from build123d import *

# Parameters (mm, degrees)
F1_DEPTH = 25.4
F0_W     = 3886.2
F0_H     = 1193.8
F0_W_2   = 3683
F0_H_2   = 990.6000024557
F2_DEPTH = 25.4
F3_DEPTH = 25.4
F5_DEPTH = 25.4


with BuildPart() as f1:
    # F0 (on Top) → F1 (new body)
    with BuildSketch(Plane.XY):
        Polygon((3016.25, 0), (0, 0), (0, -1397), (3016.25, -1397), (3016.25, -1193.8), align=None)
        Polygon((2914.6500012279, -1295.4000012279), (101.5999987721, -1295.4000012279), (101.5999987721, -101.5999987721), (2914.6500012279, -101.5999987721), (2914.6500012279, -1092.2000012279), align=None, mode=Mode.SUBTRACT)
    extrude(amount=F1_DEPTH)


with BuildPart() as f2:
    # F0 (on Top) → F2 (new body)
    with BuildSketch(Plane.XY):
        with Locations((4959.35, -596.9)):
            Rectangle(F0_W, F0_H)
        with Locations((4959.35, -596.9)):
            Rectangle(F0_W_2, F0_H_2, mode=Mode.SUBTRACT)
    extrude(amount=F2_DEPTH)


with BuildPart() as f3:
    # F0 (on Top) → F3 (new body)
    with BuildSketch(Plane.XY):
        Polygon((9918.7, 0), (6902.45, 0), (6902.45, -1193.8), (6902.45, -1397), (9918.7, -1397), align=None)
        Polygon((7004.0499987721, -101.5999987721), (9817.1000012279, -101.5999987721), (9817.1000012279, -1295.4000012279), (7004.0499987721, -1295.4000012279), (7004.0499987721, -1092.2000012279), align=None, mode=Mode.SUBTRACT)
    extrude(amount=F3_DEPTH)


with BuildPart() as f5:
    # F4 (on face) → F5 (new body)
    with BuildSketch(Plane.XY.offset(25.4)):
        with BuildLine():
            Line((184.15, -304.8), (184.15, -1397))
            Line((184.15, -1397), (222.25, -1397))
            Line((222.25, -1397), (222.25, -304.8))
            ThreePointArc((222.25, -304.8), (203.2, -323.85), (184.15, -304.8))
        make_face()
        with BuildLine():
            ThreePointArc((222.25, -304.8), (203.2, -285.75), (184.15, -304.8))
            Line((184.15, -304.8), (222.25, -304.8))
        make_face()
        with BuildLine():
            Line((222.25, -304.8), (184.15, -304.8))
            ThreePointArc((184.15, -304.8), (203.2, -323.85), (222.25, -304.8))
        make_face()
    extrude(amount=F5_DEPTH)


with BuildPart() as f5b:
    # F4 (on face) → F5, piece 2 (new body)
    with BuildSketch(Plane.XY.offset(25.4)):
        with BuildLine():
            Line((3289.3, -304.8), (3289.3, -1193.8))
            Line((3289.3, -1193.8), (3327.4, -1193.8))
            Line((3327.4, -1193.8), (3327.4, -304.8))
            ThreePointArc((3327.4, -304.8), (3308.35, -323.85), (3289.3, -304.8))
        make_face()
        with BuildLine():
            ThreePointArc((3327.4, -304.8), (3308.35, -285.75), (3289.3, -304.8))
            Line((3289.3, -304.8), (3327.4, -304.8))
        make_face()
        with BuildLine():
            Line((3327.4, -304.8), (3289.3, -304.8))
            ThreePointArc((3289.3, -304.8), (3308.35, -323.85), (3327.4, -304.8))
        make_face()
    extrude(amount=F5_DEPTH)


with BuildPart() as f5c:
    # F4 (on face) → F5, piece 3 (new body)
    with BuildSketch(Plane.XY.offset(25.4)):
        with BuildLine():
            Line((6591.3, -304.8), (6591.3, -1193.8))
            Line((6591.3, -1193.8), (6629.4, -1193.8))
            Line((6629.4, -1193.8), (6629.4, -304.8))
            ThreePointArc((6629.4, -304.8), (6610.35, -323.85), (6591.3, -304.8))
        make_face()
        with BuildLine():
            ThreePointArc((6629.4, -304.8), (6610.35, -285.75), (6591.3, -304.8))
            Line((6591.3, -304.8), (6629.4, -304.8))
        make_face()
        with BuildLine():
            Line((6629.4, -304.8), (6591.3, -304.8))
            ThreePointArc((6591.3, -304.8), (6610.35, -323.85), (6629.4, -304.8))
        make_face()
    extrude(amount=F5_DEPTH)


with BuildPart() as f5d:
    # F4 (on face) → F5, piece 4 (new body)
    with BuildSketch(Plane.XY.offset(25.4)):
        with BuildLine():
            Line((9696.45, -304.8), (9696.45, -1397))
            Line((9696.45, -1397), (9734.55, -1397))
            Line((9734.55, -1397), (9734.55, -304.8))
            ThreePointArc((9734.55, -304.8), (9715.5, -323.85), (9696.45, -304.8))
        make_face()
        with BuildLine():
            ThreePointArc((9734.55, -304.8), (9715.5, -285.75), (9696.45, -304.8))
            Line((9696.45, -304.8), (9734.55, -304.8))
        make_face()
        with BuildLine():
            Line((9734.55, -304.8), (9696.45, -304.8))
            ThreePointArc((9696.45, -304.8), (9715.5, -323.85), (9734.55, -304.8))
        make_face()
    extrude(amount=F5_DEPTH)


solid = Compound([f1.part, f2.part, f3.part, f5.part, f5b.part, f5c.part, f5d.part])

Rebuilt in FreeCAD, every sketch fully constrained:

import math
import FreeCAD as App
import Part
import Sketcher
from FreeCAD import Vector
Q = App.Units.Quantity

doc = App.newDocument("Part")
body = doc.addObject("PartDesign::Body", "Body")

# Sketch on XY plane
sketch1 = body.newObject("Sketcher::SketchObject", "Sketch")
sketch1.AttachmentSupport = (doc.getObject("XY_Plane"), [""])
sketch1.MapMode = "FlatFace"
sketch1.addGeometry(Part.LineSegment(Vector(3016.25, 0, 0), Vector(0, 0, 0)), False)
sketch1.addGeometry(Part.LineSegment(Vector(0, 0, 0), Vector(0, -1397, 0)), False)
sketch1.addGeometry(Part.LineSegment(Vector(0, -1397, 0), Vector(3016.25, -1397, 0)), False)
sketch1.addGeometry(Part.LineSegment(Vector(3016.25, -1397, 0), Vector(3016.25, 0, 0)), False)
sketch1.addGeometry(Part.LineSegment(Vector(2914.650001, -101.599999, 0), Vector(2914.650001, -1295.400001, 0)), False)
sketch1.addGeometry(Part.LineSegment(Vector(2914.650001, -1295.400001, 0), Vector(101.599999, -1295.400001, 0)), False)
sketch1.addGeometry(Part.LineSegment(Vector(101.599999, -1295.400001, 0), Vector(101.599999, -101.599999, 0)), False)
sketch1.addGeometry(Part.LineSegment(Vector(101.599999, -101.599999, 0), Vector(2914.650001, -101.599999, 0)), False)
sketch1.addConstraint(Sketcher.Constraint("Coincident", 0, 2, 1, 1))
sketch1.addConstraint(Sketcher.Constraint("Coincident", 1, 2, 2, 1))
sketch1.addConstraint(Sketcher.Constraint("Coincident", 2, 2, 3, 1))
sketch1.addConstraint(Sketcher.Constraint("Coincident", 3, 2, 0, 1))
sketch1.addConstraint(Sketcher.Constraint("Coincident", 4, 2, 5, 1))
sketch1.addConstraint(Sketcher.Constraint("Coincident", 5, 2, 6, 1))
sketch1.addConstraint(Sketcher.Constraint("Coincident", 6, 2, 7, 1))
sketch1.addConstraint(Sketcher.Constraint("Coincident", 7, 2, 4, 1))
sketch1.addConstraint(Sketcher.Constraint("Horizontal", 0))
sketch1.addConstraint(Sketcher.Constraint("Vertical", 1))
sketch1.addConstraint(Sketcher.Constraint("Horizontal", 2))
sketch1.addConstraint(Sketcher.Constraint("Vertical", 3))
sketch1.addConstraint(Sketcher.Constraint("Vertical", 4))
sketch1.addConstraint(Sketcher.Constraint("Horizontal", 5))
sketch1.addConstraint(Sketcher.Constraint("Vertical", 6))
sketch1.addConstraint(Sketcher.Constraint("Horizontal", 7))
sketch1.addConstraint(Sketcher.Constraint("Coincident", 0, 2, -1, 1))
sketch1.addConstraint(Sketcher.Constraint("DistanceY", 1, 2, 1, 1, Q("55 in")))
sketch1.addConstraint(Sketcher.Constraint("DistanceY", 4, 2, 4, 1, Q("47.0000001 in")))
sketch1.addConstraint(Sketcher.Constraint("DistanceY", 4, 2, -1, 1, Q("51 in")))
sketch1.addConstraint(Sketcher.Constraint("DistanceX", -1, 1, 5, 2, Q("4 in")))
sketch1.addConstraint(Sketcher.Constraint("DistanceX", 4, 2, 2, 2, Q("4 in")))
sketch1.addConstraint(Sketcher.Constraint("DistanceX", 0, 2, 0, 1, Q("118.75 in")))
pad1 = body.newObject("PartDesign::Pad", "Pad")
pad1.Profile = sketch1
pad1.Length = Q("1 in")
body2 = doc.addObject("PartDesign::Body", "Body001")

# Sketch on XY plane
sketch2 = body2.newObject("Sketcher::SketchObject", "Sketch001")
sketch2.AttachmentSupport = (doc.getObject("XY_Plane001"), [""])
sketch2.MapMode = "FlatFace"
sketch2.addGeometry(Part.LineSegment(Vector(3016.25, 0, 0), Vector(3016.25, -1193.8, 0)), False)
sketch2.addGeometry(Part.LineSegment(Vector(3016.25, -1193.8, 0), Vector(6902.45, -1193.8, 0)), False)
sketch2.addGeometry(Part.LineSegment(Vector(6902.45, -1193.8, 0), Vector(6902.45, 0, 0)), False)
sketch2.addGeometry(Part.LineSegment(Vector(6902.45, 0, 0), Vector(3016.25, 0, 0)), False)
sketch2.addGeometry(Part.LineSegment(Vector(6800.85, -1092.200001, 0), Vector(3117.85, -1092.200001, 0)), False)
sketch2.addGeometry(Part.LineSegment(Vector(3117.85, -1092.200001, 0), Vector(3117.85, -101.599999, 0)), False)
sketch2.addGeometry(Part.LineSegment(Vector(3117.85, -101.599999, 0), Vector(6800.85, -101.599999, 0)), False)
sketch2.addGeometry(Part.LineSegment(Vector(6800.85, -101.599999, 0), Vector(6800.85, -1092.200001, 0)), False)
sketch2.addConstraint(Sketcher.Constraint("Coincident", 0, 2, 1, 1))
sketch2.addConstraint(Sketcher.Constraint("Coincident", 1, 2, 2, 1))
sketch2.addConstraint(Sketcher.Constraint("Coincident", 2, 2, 3, 1))
sketch2.addConstraint(Sketcher.Constraint("Coincident", 3, 2, 0, 1))
sketch2.addConstraint(Sketcher.Constraint("Coincident", 4, 2, 5, 1))
sketch2.addConstraint(Sketcher.Constraint("Coincident", 5, 2, 6, 1))
sketch2.addConstraint(Sketcher.Constraint("Coincident", 6, 2, 7, 1))
sketch2.addConstraint(Sketcher.Constraint("Coincident", 7, 2, 4, 1))
sketch2.addConstraint(Sketcher.Constraint("Vertical", 0))
sketch2.addConstraint(Sketcher.Constraint("Horizontal", 1))
sketch2.addConstraint(Sketcher.Constraint("Vertical", 2))
sketch2.addConstraint(Sketcher.Constraint("Horizontal", 3))
sketch2.addConstraint(Sketcher.Constraint("Horizontal", 4))
sketch2.addConstraint(Sketcher.Constraint("Vertical", 5))
sketch2.addConstraint(Sketcher.Constraint("Horizontal", 6))
sketch2.addConstraint(Sketcher.Constraint("Vertical", 7))
sketch2.addConstraint(Sketcher.Constraint("PointOnObject", 2, 2, -1))
sketch2.addConstraint(Sketcher.Constraint("DistanceX", 1, 1, 1, 2, Q("153 in")))
sketch2.addConstraint(Sketcher.Constraint("DistanceX", 4, 2, 4, 1, Q("145 in")))
sketch2.addConstraint(Sketcher.Constraint("DistanceY", 0, 2, 0, 1, Q("47 in")))
sketch2.addConstraint(Sketcher.Constraint("DistanceY", 5, 1, 5, 2, Q("39.0000001 in")))
sketch2.addConstraint(Sketcher.Constraint("DistanceY", 4, 2, -1, 1, Q("43 in")))
sketch2.addConstraint(Sketcher.Constraint("DistanceX", 0, 2, 4, 2, Q("4 in")))
sketch2.addConstraint(Sketcher.Constraint("DistanceX", -1, 1, 0, 2, Q("118.75 in")))
pad2 = body2.newObject("PartDesign::Pad", "Pad001")
pad2.Profile = sketch2
pad2.Length = Q("1 in")
body3 = doc.addObject("PartDesign::Body", "Body002")

# Sketch on XY plane
sketch3 = body3.newObject("Sketcher::SketchObject", "Sketch002")
sketch3.AttachmentSupport = (doc.getObject("XY_Plane002"), [""])
sketch3.MapMode = "FlatFace"
sketch3.addGeometry(Part.LineSegment(Vector(9918.7, 0, 0), Vector(6902.45, 0, 0)), False)
sketch3.addGeometry(Part.LineSegment(Vector(6902.45, 0, 0), Vector(6902.45, -1397, 0)), False)
sketch3.addGeometry(Part.LineSegment(Vector(6902.45, -1397, 0), Vector(9918.7, -1397, 0)), False)
sketch3.addGeometry(Part.LineSegment(Vector(9918.7, -1397, 0), Vector(9918.7, 0, 0)), False)
sketch3.addGeometry(Part.LineSegment(Vector(7004.049999, -1295.400001, 0), Vector(7004.049999, -101.599999, 0)), False)
sketch3.addGeometry(Part.LineSegment(Vector(7004.049999, -101.599999, 0), Vector(9817.100001, -101.599999, 0)), False)
sketch3.addGeometry(Part.LineSegment(Vector(9817.100001, -101.599999, 0), Vector(9817.100001, -1295.400001, 0)), False)
sketch3.addGeometry(Part.LineSegment(Vector(9817.100001, -1295.400001, 0), Vector(7004.049999, -1295.400001, 0)), False)
sketch3.addConstraint(Sketcher.Constraint("Coincident", 0, 2, 1, 1))
sketch3.addConstraint(Sketcher.Constraint("Coincident", 1, 2, 2, 1))
sketch3.addConstraint(Sketcher.Constraint("Coincident", 2, 2, 3, 1))
sketch3.addConstraint(Sketcher.Constraint("Coincident", 3, 2, 0, 1))
sketch3.addConstraint(Sketcher.Constraint("Coincident", 4, 2, 5, 1))
sketch3.addConstraint(Sketcher.Constraint("Coincident", 5, 2, 6, 1))
sketch3.addConstraint(Sketcher.Constraint("Coincident", 6, 2, 7, 1))
sketch3.addConstraint(Sketcher.Constraint("Coincident", 7, 2, 4, 1))
sketch3.addConstraint(Sketcher.Constraint("Horizontal", 0))
sketch3.addConstraint(Sketcher.Constraint("Vertical", 1))
sketch3.addConstraint(Sketcher.Constraint("Horizontal", 2))
sketch3.addConstraint(Sketcher.Constraint("Vertical", 3))
sketch3.addConstraint(Sketcher.Constraint("Vertical", 4))
sketch3.addConstraint(Sketcher.Constraint("Horizontal", 5))
sketch3.addConstraint(Sketcher.Constraint("Vertical", 6))
sketch3.addConstraint(Sketcher.Constraint("Horizontal", 7))
sketch3.addConstraint(Sketcher.Constraint("PointOnObject", 0, 2, -1))
sketch3.addConstraint(Sketcher.Constraint("DistanceY", 1, 2, 1, 1, Q("55 in")))
sketch3.addConstraint(Sketcher.Constraint("DistanceY", 4, 1, 4, 2, Q("47.0000001 in")))
sketch3.addConstraint(Sketcher.Constraint("DistanceY", 4, 2, -1, 1, Q("4 in")))
sketch3.addConstraint(Sketcher.Constraint("DistanceX", 0, 2, 4, 2, Q("4 in")))
sketch3.addConstraint(Sketcher.Constraint("DistanceX", 5, 2, 3, 2, Q("4 in")))
sketch3.addConstraint(Sketcher.Constraint("DistanceX", 0, 2, 0, 1, Q("118.75 in")))
sketch3.addConstraint(Sketcher.Constraint("DistanceX", -1, 1, 2, 2, Q("390.5 in")))
pad3 = body3.newObject("PartDesign::Pad", "Pad002")
pad3.Profile = sketch3
pad3.Length = Q("1 in")
body4 = doc.addObject("PartDesign::Body", "Body003")

# Sketch on XY plane
sketch4 = body4.newObject("Sketcher::SketchObject", "Sketch003")
sketch4.AttachmentSupport = (doc.getObject("XY_Plane003"), [""])
sketch4.MapMode = "FlatFace"
sketch4.AttachmentOffset = App.Placement(Vector(0, 0, 1 * 25.4), App.Rotation())
sketch4.addGeometry(Part.LineSegment(Vector(184.15, -304.8, 0), Vector(184.15, -1397, 0)), False)
sketch4.addGeometry(Part.LineSegment(Vector(184.15, -1397, 0), Vector(222.25, -1397, 0)), False)
sketch4.addGeometry(Part.LineSegment(Vector(222.25, -1397, 0), Vector(222.25, -304.8, 0)), False)
sketch4.addGeometry(Part.ArcOfCircle(Part.Circle(Vector(203.2, -304.8, 0), Vector(0, 0, 1), 19.05), math.radians(0), math.radians(180)), False)
sketch4.addConstraint(Sketcher.Constraint("Coincident", 0, 2, 1, 1))
sketch4.addConstraint(Sketcher.Constraint("Coincident", 1, 2, 2, 1))
sketch4.addConstraint(Sketcher.Constraint("Tangent", 2, 2, 3, 1))
sketch4.addConstraint(Sketcher.Constraint("Tangent", 3, 2, 0, 1))
sketch4.addConstraint(Sketcher.Constraint("Vertical", 0))
sketch4.addConstraint(Sketcher.Constraint("Horizontal", 1))
sketch4.addConstraint(Sketcher.Constraint("Vertical", 2))
sketch4.addConstraint(Sketcher.Constraint("DistanceY", 0, 2, 0, 1, Q("43 in")))
sketch4.addConstraint(Sketcher.Constraint("Radius", 3, Q("0.75 in")))
sketch4.addConstraint(Sketcher.Constraint("DistanceX", -1, 1, 3, 3, Q("8 in")))
sketch4.addConstraint(Sketcher.Constraint("DistanceY", 3, 3, -1, 1, Q("12 in")))
pad4 = body4.newObject("PartDesign::Pad", "Pad003")
pad4.Profile = sketch4
pad4.Length = Q("1 in")
body5 = doc.addObject("PartDesign::Body", "Body004")

# Sketch on XY plane
sketch5 = body5.newObject("Sketcher::SketchObject", "Sketch004")
sketch5.AttachmentSupport = (doc.getObject("XY_Plane004"), [""])
sketch5.MapMode = "FlatFace"
sketch5.AttachmentOffset = App.Placement(Vector(0, 0, 1 * 25.4), App.Rotation())
sketch5.addGeometry(Part.LineSegment(Vector(3289.3, -304.8, 0), Vector(3289.3, -1193.8, 0)), False)
sketch5.addGeometry(Part.LineSegment(Vector(3289.3, -1193.8, 0), Vector(3327.4, -1193.8, 0)), False)
sketch5.addGeometry(Part.LineSegment(Vector(3327.4, -1193.8, 0), Vector(3327.4, -304.8, 0)), False)
sketch5.addGeometry(Part.ArcOfCircle(Part.Circle(Vector(3308.35, -304.8, 0), Vector(0, 0, 1), 19.05), math.radians(0), math.radians(180)), False)
sketch5.addConstraint(Sketcher.Constraint("Coincident", 0, 2, 1, 1))
sketch5.addConstraint(Sketcher.Constraint("Coincident", 1, 2, 2, 1))
sketch5.addConstraint(Sketcher.Constraint("Tangent", 2, 2, 3, 1))
sketch5.addConstraint(Sketcher.Constraint("Tangent", 3, 2, 0, 1))
sketch5.addConstraint(Sketcher.Constraint("Vertical", 0))
sketch5.addConstraint(Sketcher.Constraint("Horizontal", 1))
sketch5.addConstraint(Sketcher.Constraint("Vertical", 2))
sketch5.addConstraint(Sketcher.Constraint("DistanceY", 0, 2, 0, 1, Q("35 in")))
sketch5.addConstraint(Sketcher.Constraint("Radius", 3, Q("0.75 in")))
sketch5.addConstraint(Sketcher.Constraint("DistanceY", 3, 3, -1, 1, Q("12 in")))
sketch5.addConstraint(Sketcher.Constraint("DistanceX", -1, 1, 1, 2, Q("131 in")))
pad5 = body5.newObject("PartDesign::Pad", "Pad004")
pad5.Profile = sketch5
pad5.Length = Q("1 in")
body6 = doc.addObject("PartDesign::Body", "Body005")

# Sketch on XY plane
sketch6 = body6.newObject("Sketcher::SketchObject", "Sketch005")
sketch6.AttachmentSupport = (doc.getObject("XY_Plane005"), [""])
sketch6.MapMode = "FlatFace"
sketch6.AttachmentOffset = App.Placement(Vector(0, 0, 1 * 25.4), App.Rotation())
sketch6.addGeometry(Part.LineSegment(Vector(6591.3, -304.8, 0), Vector(6591.3, -1193.8, 0)), False)
sketch6.addGeometry(Part.LineSegment(Vector(6591.3, -1193.8, 0), Vector(6629.4, -1193.8, 0)), False)
sketch6.addGeometry(Part.LineSegment(Vector(6629.4, -1193.8, 0), Vector(6629.4, -304.8, 0)), False)
sketch6.addGeometry(Part.ArcOfCircle(Part.Circle(Vector(6610.35, -304.8, 0), Vector(0, 0, 1), 19.05), math.radians(0), math.radians(180)), False)
sketch6.addConstraint(Sketcher.Constraint("Coincident", 0, 2, 1, 1))
sketch6.addConstraint(Sketcher.Constraint("Coincident", 1, 2, 2, 1))
sketch6.addConstraint(Sketcher.Constraint("Tangent", 2, 2, 3, 1))
sketch6.addConstraint(Sketcher.Constraint("Tangent", 3, 2, 0, 1))
sketch6.addConstraint(Sketcher.Constraint("Vertical", 0))
sketch6.addConstraint(Sketcher.Constraint("Horizontal", 1))
sketch6.addConstraint(Sketcher.Constraint("Vertical", 2))
sketch6.addConstraint(Sketcher.Constraint("DistanceY", 0, 2, 0, 1, Q("35 in")))
sketch6.addConstraint(Sketcher.Constraint("Radius", 3, Q("0.75 in")))
sketch6.addConstraint(Sketcher.Constraint("DistanceY", 3, 3, -1, 1, Q("12 in")))
sketch6.addConstraint(Sketcher.Constraint("DistanceX", -1, 1, 1, 2, Q("261 in")))
pad6 = body6.newObject("PartDesign::Pad", "Pad005")
pad6.Profile = sketch6
pad6.Length = Q("1 in")
body7 = doc.addObject("PartDesign::Body", "Body006")

# Sketch on XY plane
sketch7 = body7.newObject("Sketcher::SketchObject", "Sketch006")
sketch7.AttachmentSupport = (doc.getObject("XY_Plane006"), [""])
sketch7.MapMode = "FlatFace"
sketch7.AttachmentOffset = App.Placement(Vector(0, 0, 1 * 25.4), App.Rotation())
sketch7.addGeometry(Part.LineSegment(Vector(9696.45, -304.8, 0), Vector(9696.45, -1397, 0)), False)
sketch7.addGeometry(Part.LineSegment(Vector(9696.45, -1397, 0), Vector(9734.55, -1397, 0)), False)
sketch7.addGeometry(Part.LineSegment(Vector(9734.55, -1397, 0), Vector(9734.55, -304.8, 0)), False)
sketch7.addGeometry(Part.ArcOfCircle(Part.Circle(Vector(9715.5, -304.8, 0), Vector(0, 0, 1), 19.05), math.radians(0), math.radians(180)), False)
sketch7.addConstraint(Sketcher.Constraint("Coincident", 0, 2, 1, 1))
sketch7.addConstraint(Sketcher.Constraint("Coincident", 1, 2, 2, 1))
sketch7.addConstraint(Sketcher.Constraint("Tangent", 2, 2, 3, 1))
sketch7.addConstraint(Sketcher.Constraint("Tangent", 3, 2, 0, 1))
sketch7.addConstraint(Sketcher.Constraint("Vertical", 0))
sketch7.addConstraint(Sketcher.Constraint("Horizontal", 1))
sketch7.addConstraint(Sketcher.Constraint("Vertical", 2))
sketch7.addConstraint(Sketcher.Constraint("DistanceY", 0, 2, 0, 1, Q("43 in")))
sketch7.addConstraint(Sketcher.Constraint("Radius", 3, Q("0.75 in")))
sketch7.addConstraint(Sketcher.Constraint("DistanceY", 3, 3, -1, 1, Q("12 in")))
sketch7.addConstraint(Sketcher.Constraint("DistanceX", -1, 1, 3, 3, Q("382.5 in")))
pad7 = body7.newObject("PartDesign::Pad", "Pad006")
pad7.Profile = sketch7
pad7.Length = Q("1 in")

doc.recompute()
